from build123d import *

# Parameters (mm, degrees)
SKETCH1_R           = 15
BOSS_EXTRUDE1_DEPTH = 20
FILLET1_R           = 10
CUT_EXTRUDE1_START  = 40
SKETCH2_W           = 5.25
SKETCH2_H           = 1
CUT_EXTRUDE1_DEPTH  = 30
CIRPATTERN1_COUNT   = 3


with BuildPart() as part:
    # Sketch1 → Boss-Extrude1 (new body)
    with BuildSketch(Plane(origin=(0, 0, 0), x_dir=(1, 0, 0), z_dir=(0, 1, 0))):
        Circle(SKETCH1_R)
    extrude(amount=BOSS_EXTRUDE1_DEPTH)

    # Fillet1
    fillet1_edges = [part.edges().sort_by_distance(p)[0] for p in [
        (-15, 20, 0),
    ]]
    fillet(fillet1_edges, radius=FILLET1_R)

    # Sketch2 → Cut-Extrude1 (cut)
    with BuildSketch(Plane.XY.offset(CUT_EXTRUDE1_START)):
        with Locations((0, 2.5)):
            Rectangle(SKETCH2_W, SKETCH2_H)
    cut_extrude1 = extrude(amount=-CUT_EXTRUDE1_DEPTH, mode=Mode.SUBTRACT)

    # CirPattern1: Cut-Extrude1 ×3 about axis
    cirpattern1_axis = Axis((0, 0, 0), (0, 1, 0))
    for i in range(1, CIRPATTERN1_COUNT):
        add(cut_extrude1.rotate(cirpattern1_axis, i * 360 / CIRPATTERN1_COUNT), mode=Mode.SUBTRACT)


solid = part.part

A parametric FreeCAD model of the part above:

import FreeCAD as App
import Part
import Sketcher

V = App.Vector
Q = App.Units.Quantity


def edges_at(feature, points):
    """Names of the edges that pass closest to the given points."""
    edges = feature.Shape.Edges
    near = lambda p: min(range(len(edges)), key=lambda i: edges[i].distToShape(Part.Vertex(*p))[0])
    return sorted({f"Edge{near(p) + 1}" for p in points})

doc = App.newDocument("Part")
body = doc.addObject("PartDesign::Body", "Body")

# Sketch on XZ plane
sketch1 = body.newObject("Sketcher::SketchObject", "Sketch")
sketch1.AttachmentSupport = (doc.getObject("XZ_Plane"), [""])
sketch1.MapMode = "FlatFace"
sketch1.addGeometry(Part.Circle(V(0, 0, 0), V(0, 0, 1), 15), False)
sketch1.addConstraint([
    Sketcher.Constraint("Coincident", 0, 3, -1, 1),
    Sketcher.Constraint("Diameter", 0, Q("30 mm")),
])
pad1 = body.newObject("PartDesign::Pad", "Pad")
pad1.Profile = sketch1
pad1.Length = 20
pad1.Reversed = True
doc.recompute()

fillet = body.newObject("PartDesign::Fillet", "Fillet")
fillet.Base = (pad1, edges_at(pad1, [(-15, 20, 0)]))
fillet.Radius = 10

# Sketch on XY plane
sketch2 = body.newObject("Sketcher::SketchObject", "Sketch001")
sketch2.AttachmentSupport = (doc.getObject("XY_Plane"), [""])
sketch2.MapMode = "FlatFace"
sketch2.AttachmentOffset = App.Placement(V(0, 0, 40), App.Rotation())
sketch2.addGeometry([
    Part.LineSegment(V(-2.6, 3, 0), V(-2.6, 2, 0)),
    Part.LineSegment(V(-2.6, 2, 0), V(2.6, 2, 0)),
    Part.LineSegment(V(2.6, 2, 0), V(2.6, 3, 0)),
    Part.LineSegment(V(2.6, 3, 0), V(-2.6, 3, 0)),
], False)
sketch2.addConstraint([
    Sketcher.Constraint("Coincident", 0, 2, 1, 1),
    Sketcher.Constraint("Coincident", 1, 2, 2, 1),
    Sketcher.Constraint("Coincident", 2, 2, 3, 1),
    Sketcher.Constraint("Coincident", 3, 2, 0, 1),
    Sketcher.Constraint("Vertical", 0),
    Sketcher.Constraint("Horizontal", 1),
    Sketcher.Constraint("Vertical", 2),
    Sketcher.Constraint("Horizontal", 3),
    Sketcher.Constraint("DistanceY", 0, 2, 0, 1, Q("1 mm")),
    Sketcher.Constraint("DistanceY", -1, 1, 0, 2, Q("2 mm")),
    Sketcher.Constraint("DistanceX", 1, 1, 1, 2, Q("5.25 mm")),
    Sketcher.Constraint("DistanceX", 0, 2, -1, 1, Q("2.625 mm")),
])
pocket1 = body.newObject("PartDesign::Pocket", "Pocket")
pocket1.Profile = sketch2
pocket1.Length = 30
doc.recompute()

polarpattern = body.newObject("PartDesign::PolarPattern", "PolarPattern")
polarpattern.Originals = [pocket1]
polarpattern.Axis = (doc.getObject("Y_Axis"), [""])
polarpattern.Angle = 360
polarpattern.Occurrences = 3
body.Tip = polarpattern

doc.recompute()
